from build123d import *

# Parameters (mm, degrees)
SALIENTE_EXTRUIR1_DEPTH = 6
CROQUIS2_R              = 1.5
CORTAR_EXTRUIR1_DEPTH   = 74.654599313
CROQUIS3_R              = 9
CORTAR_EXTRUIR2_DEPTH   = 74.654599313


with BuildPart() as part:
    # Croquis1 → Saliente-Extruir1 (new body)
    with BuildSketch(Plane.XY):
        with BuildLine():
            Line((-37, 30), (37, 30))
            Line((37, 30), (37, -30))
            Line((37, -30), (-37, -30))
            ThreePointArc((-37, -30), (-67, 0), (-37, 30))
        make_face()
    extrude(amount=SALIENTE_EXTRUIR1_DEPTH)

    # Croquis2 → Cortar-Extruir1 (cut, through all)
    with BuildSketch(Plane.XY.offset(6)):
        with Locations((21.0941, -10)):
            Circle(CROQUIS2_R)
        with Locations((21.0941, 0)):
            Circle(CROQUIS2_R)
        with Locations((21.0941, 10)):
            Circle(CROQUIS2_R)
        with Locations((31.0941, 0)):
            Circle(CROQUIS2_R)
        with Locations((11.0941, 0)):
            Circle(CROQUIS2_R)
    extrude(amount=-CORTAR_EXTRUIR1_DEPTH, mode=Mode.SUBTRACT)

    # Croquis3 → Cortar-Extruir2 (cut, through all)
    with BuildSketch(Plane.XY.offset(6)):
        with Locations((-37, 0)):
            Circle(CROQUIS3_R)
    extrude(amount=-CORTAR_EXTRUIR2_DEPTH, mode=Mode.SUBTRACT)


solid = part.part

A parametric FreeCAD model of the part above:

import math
import FreeCAD as App
import Part
import Sketcher
Q = App.Units.Quantity

doc = App.newDocument("Part")
params = doc.addObject("Spreadsheet::Sheet", "Params")
for row, (alias, value) in enumerate([
    ("sketch1_radius", "30 mm"),
    ("sketch1_width", "74 mm"),
    ("pad1_length", "6 mm"),
    ("sketch2_diameter", "3 mm"),
    ("sketch3_diameter", "18 mm"),
], start=1):
    params.set(f"A{row}", alias)
    params.set(f"B{row}", "=" + value)
    params.setAlias(f"B{row}", alias)

body = doc.addObject("PartDesign::Body", "Body")

sketch1 = body.newObject("Sketcher::SketchObject", "Sketch")
sketch1.AttachmentSupport = (doc.getObject("XY_Plane"), [""])
sketch1.MapMode = "FlatFace"
sketch1.addGeometry([
    Part.LineSegment(App.Vector(37, 30, 0), App.Vector(-37, 30, 0)),
    Part.ArcOfCircle(Part.Circle(App.Vector(-37, 0, 0), App.Vector(0, 0, 1), 30), math.radians(90), math.radians(270)),
    Part.LineSegment(App.Vector(-37, -30, 0), App.Vector(37, -30, 0)),
    Part.LineSegment(App.Vector(37, -30, 0), App.Vector(37, 30, 0)),
], False)
sketch1.addConstraint([
    Sketcher.Constraint("Tangent", 0, 2, 1, 1),
    Sketcher.Constraint("Tangent", 1, 2, 2, 1),
    Sketcher.Constraint("Coincident", 2, 2, 3, 1),
    Sketcher.Constraint("Coincident", 3, 2, 0, 1),
    Sketcher.Constraint("Horizontal", 0),
    Sketcher.Constraint("Horizontal", 2),
    Sketcher.Constraint("Vertical", 3),
    Sketcher.Constraint("Symmetric", 0, 2, 2, 2, -1, 1),
    Sketcher.Constraint("Radius", 1, Q("30 mm")),
    Sketcher.Constraint("DistanceX", 0, 2, 0, 1, Q("74 mm")),
])
sketch1.setExpression("Constraints[8]", "Params.sketch1_radius")
sketch1.setExpression("Constraints[9]", "Params.sketch1_width")
pad1 = body.newObject("PartDesign::Pad", "Pad")
pad1.Profile = sketch1
pad1.setExpression("Length", "Params.pad1_length")

sketch2 = body.newObject("Sketcher::SketchObject", "Sketch001")
sketch2.AttachmentSupport = (doc.getObject("XY_Plane"), [""])
sketch2.MapMode = "FlatFace"
sketch2.AttachmentOffset = App.Placement(App.Vector(0, 0, 6), App.Rotation())
sketch2.addGeometry([
    Part.Circle(App.Vector(21.0941, -10, 0), App.Vector(0, 0, 1), 1.5),
    Part.Circle(App.Vector(21.0941, 0, 0), App.Vector(0, 0, 1), 1.5),
    Part.Circle(App.Vector(21.0941, 10, 0), App.Vector(0, 0, 1), 1.5),
    Part.Circle(App.Vector(31.0941, 0, 0), App.Vector(0, 0, 1), 1.5),
    Part.Circle(App.Vector(11.0941, 0, 0), App.Vector(0, 0, 1), 1.5),
], False)
sketch2.addConstraint([
    Sketcher.Constraint("Equal", 0, 1),
    Sketcher.Constraint("Equal", 1, 2),
    Sketcher.Constraint("Equal", 2, 3),
    Sketcher.Constraint("Equal", 3, 4),
    Sketcher.Constraint("Symmetric", 0, 3, 2, 3, -1),
    Sketcher.Constraint("PointOnObject", 1, 3, -1),
    Sketcher.Constraint("PointOnObject", 3, 3, -1),
    Sketcher.Constraint("PointOnObject", 4, 3, -1),
    Sketcher.Constraint("Vertical", 0, 3, 1, 3),
    Sketcher.Constraint("Diameter", 0, Q("3 mm")),
    Sketcher.Constraint("DistanceY", 0, 3, -1, 1, Q("10 mm")),
    Sketcher.Constraint("DistanceX", 1, 3, 3, 3, Q("10 mm")),
    Sketcher.Constraint("DistanceX", 4, 3, 1, 3, Q("10 mm")),
    Sketcher.Constraint("DistanceX", -1, 1, 0, 3, Q("21.0941 mm")),
])
sketch2.setExpression("Constraints[9]", "Params.sketch2_diameter")
pocket1 = body.newObject("PartDesign::Pocket", "Pocket")
pocket1.Profile = sketch2
pocket1.Type = "ThroughAll"

sketch3 = body.newObject("Sketcher::SketchObject", "Sketch002")
sketch3.AttachmentSupport = (doc.getObject("XY_Plane"), [""])
sketch3.MapMode = "FlatFace"
sketch3.AttachmentOffset = App.Placement(App.Vector(0, 0, 6), App.Rotation())
sketch3.addGeometry(Part.Circle(App.Vector(-37, 0, 0), App.Vector(0, 0, 1), 9), False)
sketch3.addConstraint([
    Sketcher.Constraint("PointOnObject", 0, 3, -1),
    Sketcher.Constraint("Diameter", 0, Q("18 mm")),
    Sketcher.Constraint("DistanceX", 0, 3, -1, 1, Q("37 mm")),
])
sketch3.setExpression("Constraints[1]", "Params.sketch3_diameter")
pocket2 = body.newObject("PartDesign::Pocket", "Pocket001")
pocket2.Profile = sketch3
pocket2.Type = "ThroughAll"

doc.recompute()
